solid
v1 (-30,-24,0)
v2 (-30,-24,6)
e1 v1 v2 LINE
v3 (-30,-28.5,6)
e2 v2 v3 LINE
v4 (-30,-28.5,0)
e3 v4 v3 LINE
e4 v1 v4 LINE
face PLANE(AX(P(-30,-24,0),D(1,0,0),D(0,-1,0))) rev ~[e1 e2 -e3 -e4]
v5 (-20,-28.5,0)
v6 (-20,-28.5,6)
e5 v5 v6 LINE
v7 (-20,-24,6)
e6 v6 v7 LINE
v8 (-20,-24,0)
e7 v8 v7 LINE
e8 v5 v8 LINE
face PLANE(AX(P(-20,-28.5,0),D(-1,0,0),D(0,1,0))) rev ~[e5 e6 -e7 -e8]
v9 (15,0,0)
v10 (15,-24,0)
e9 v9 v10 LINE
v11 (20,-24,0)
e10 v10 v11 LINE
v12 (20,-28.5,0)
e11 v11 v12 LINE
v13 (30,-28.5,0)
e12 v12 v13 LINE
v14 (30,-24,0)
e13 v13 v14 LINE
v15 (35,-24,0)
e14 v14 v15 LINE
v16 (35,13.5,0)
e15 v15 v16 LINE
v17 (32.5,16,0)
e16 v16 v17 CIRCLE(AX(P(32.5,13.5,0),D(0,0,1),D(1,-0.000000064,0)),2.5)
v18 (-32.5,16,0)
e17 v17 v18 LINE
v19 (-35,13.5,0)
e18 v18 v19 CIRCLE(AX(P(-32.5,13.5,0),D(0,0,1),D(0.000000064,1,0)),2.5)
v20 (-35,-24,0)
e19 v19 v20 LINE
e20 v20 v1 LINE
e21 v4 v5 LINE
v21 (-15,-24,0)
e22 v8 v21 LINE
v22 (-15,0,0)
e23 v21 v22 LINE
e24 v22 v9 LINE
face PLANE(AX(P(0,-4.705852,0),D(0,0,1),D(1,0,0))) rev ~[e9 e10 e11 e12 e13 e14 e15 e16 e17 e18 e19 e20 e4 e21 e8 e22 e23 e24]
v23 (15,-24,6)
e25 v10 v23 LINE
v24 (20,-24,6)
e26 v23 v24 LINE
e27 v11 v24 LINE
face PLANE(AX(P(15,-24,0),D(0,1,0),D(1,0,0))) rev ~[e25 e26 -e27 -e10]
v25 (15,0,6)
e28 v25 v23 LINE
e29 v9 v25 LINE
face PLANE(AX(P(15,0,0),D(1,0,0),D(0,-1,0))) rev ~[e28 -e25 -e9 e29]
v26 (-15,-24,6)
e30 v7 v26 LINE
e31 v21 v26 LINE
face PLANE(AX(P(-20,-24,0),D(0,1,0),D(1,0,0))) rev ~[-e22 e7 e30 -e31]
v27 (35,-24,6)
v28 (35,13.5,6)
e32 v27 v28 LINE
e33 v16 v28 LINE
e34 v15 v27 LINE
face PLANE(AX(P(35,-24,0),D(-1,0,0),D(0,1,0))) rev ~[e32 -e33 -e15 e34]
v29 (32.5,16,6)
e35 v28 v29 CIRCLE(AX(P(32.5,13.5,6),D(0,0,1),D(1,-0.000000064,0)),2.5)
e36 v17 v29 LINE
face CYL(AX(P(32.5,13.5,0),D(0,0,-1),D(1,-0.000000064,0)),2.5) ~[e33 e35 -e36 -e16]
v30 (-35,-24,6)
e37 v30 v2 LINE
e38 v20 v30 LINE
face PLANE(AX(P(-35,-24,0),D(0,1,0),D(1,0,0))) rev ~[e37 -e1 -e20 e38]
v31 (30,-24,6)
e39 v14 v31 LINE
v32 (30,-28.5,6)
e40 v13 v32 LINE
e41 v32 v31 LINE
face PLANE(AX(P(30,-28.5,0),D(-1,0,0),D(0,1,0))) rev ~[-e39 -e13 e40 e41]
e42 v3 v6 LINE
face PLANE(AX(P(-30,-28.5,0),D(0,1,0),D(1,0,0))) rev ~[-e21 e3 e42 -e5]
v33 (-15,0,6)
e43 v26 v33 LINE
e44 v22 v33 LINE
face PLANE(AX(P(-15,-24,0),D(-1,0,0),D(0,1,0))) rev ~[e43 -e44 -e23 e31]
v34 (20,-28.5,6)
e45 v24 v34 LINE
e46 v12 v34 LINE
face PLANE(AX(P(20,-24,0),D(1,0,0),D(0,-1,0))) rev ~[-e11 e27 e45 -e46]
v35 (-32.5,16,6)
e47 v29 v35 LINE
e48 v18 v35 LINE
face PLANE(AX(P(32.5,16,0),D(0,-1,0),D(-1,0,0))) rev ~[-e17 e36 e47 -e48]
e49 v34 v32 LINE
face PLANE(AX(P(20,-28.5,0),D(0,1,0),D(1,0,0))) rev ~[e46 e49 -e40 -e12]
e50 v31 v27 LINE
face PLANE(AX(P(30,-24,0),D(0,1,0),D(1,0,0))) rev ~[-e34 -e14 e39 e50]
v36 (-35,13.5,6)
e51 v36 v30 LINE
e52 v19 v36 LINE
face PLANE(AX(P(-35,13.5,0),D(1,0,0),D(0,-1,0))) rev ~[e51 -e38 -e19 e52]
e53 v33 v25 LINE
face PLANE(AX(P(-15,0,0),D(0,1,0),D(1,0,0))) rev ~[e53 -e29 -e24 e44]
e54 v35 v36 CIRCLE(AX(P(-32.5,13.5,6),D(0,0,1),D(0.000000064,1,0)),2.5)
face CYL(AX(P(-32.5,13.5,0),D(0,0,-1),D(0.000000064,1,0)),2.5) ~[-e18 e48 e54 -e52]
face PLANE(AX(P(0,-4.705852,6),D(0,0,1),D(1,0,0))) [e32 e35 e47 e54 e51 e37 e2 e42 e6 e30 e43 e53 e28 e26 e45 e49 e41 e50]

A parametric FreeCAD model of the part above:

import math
import FreeCAD as App
import Part
import Sketcher

doc = App.newDocument("Part")
body = doc.addObject("PartDesign::Body", "Body")

sketch1 = body.newObject("Sketcher::SketchObject", "Sketch")
sketch1.AttachmentSupport = (doc.getObject("XY_Plane"), [""])
sketch1.MapMode = "FlatFace"
sketch1.addGeometry([
    Part.LineSegment(App.Vector(32.5, 16, 0), App.Vector(-32.5, 16, 0)),
    Part.ArcOfCircle(Part.Circle(App.Vector(-32.5, 13.5, 0), App.Vector(0, 0, 1), 2.5), math.radians(90), math.radians(180)),
    Part.LineSegment(App.Vector(-35, 13.5, 0), App.Vector(-35, -24, 0)),
    Part.LineSegment(App.Vector(-35, -24, 0), App.Vector(-30, -24, 0)),
    Part.LineSegment(App.Vector(-30, -24, 0), App.Vector(-30, -28.5, 0)),
    Part.LineSegment(App.Vector(-30, -28.5, 0), App.Vector(-20, -28.5, 0)),
    Part.LineSegment(App.Vector(-20, -28.5, 0), App.Vector(-20, -24, 0)),
    Part.LineSegment(App.Vector(-20, -24, 0), App.Vector(-15, -24, 0)),
    Part.LineSegment(App.Vector(-15, -24, 0), App.Vector(-15, 0, 0)),
    Part.LineSegment(App.Vector(-15, 0, 0), App.Vector(15, 0, 0)),
    Part.LineSegment(App.Vector(15, 0, 0), App.Vector(15, -24, 0)),
    Part.LineSegment(App.Vector(15, -24, 0), App.Vector(20, -24, 0)),
    Part.LineSegment(App.Vector(20, -24, 0), App.Vector(20, -28.5, 0)),
    Part.LineSegment(App.Vector(20, -28.5, 0), App.Vector(30, -28.5, 0)),
    Part.LineSegment(App.Vector(30, -28.5, 0), App.Vector(30, -24, 0)),
    Part.LineSegment(App.Vector(30, -24, 0), App.Vector(35, -24, 0)),
    Part.LineSegment(App.Vector(35, -24, 0), App.Vector(35, 13.5, 0)),
    Part.ArcOfCircle(Part.Circle(App.Vector(32.5, 13.5, 0), App.Vector(0, 0, 1), 2.5), math.radians(0), math.radians(90)),
], False)
sketch1.addConstraint([
    Sketcher.Constraint("Tangent", 0, 2, 1, 1),
    Sketcher.Constraint("Tangent", 1, 2, 2, 1),
    Sketcher.Constraint("Coincident", 2, 2, 3, 1),
    Sketcher.Constraint("Coincident", 3, 2, 4, 1),
    Sketcher.Constraint("Coincident", 4, 2, 5, 1),
    Sketcher.Constraint("Coincident", 5, 2, 6, 1),
    Sketcher.Constraint("Coincident", 6, 2, 7, 1),
    Sketcher.Constraint("Coincident", 7, 2, 8, 1),
    Sketcher.Constraint("Coincident", 8, 2, 9, 1),
    Sketcher.Constraint("Coincident", 9, 2, 10, 1),
    Sketcher.Constraint("Coincident", 10, 2, 11, 1),
    Sketcher.Constraint("Coincident", 11, 2, 12, 1),
    Sketcher.Constraint("Coincident", 12, 2, 13, 1),
    Sketcher.Constraint("Coincident", 13, 2, 14, 1),
    Sketcher.Constraint("Coincident", 14, 2, 15, 1),
    Sketcher.Constraint("Coincident", 15, 2, 16, 1),
    Sketcher.Constraint("Tangent", 16, 2, 17, 1),
    Sketcher.Constraint("Tangent", 17, 2, 0, 1),
    Sketcher.Constraint("Horizontal", 0),
    Sketcher.Constraint("Vertical", 2),
    Sketcher.Constraint("Horizontal", 3),
    Sketcher.Constraint("Vertical", 4),
    Sketcher.Constraint("Horizontal", 5),
    Sketcher.Constraint("Vertical", 6),
    Sketcher.Constraint("Horizontal", 7),
    Sketcher.Constraint("Vertical", 8),
    Sketcher.Constraint("Horizontal", 9),
    Sketcher.Constraint("Vertical", 10),
    Sketcher.Constraint("Horizontal", 11),
    Sketcher.Constraint("Vertical", 12),
    Sketcher.Constraint("Horizontal", 13),
    Sketcher.Constraint("Vertical", 14),
    Sketcher.Constraint("Horizontal", 15),
    Sketcher.Constraint("Vertical", 16),
    Sketcher.Constraint("Equal", 1, 17),
    Sketcher.Constraint("Symmetric", 8, 2, 9, 2, -1, 1),
    Sketcher.Constraint("Symmetric", 6, 2, 11, 2, -2),
    Sketcher.Constraint("Symmetric", 4, 2, 13, 2, -2),
    Sketcher.Constraint("Symmetric", 2, 2, 15, 2, -2),
    Sketcher.Constraint("Horizontal", 3, 2, 6, 2),
    Sketcher.Constraint("Equal", 3, 7),
    Sketcher.Constraint("Radius", 1, 2.5),
    Sketcher.Constraint("DistanceX", 0, 2, 0, 1, 65.0),
    Sketcher.Constraint("DistanceX", 3, 1, 3, 2, 5.0),
    Sketcher.Constraint("DistanceX", 5, 1, 5, 2, 10.0),
    Sketcher.Constraint("DistanceY", 8, 1, 8, 2, 24.0),
    Sketcher.Constraint("DistanceY", 2, 2, 2, 1, 37.5),
    Sketcher.Constraint("DistanceY", 4, 2, 4, 1, 4.5),
])
pad1 = body.newObject("PartDesign::Pad", "Pad")
pad1.Profile = sketch1
pad1.Length = 6

doc.recompute()
